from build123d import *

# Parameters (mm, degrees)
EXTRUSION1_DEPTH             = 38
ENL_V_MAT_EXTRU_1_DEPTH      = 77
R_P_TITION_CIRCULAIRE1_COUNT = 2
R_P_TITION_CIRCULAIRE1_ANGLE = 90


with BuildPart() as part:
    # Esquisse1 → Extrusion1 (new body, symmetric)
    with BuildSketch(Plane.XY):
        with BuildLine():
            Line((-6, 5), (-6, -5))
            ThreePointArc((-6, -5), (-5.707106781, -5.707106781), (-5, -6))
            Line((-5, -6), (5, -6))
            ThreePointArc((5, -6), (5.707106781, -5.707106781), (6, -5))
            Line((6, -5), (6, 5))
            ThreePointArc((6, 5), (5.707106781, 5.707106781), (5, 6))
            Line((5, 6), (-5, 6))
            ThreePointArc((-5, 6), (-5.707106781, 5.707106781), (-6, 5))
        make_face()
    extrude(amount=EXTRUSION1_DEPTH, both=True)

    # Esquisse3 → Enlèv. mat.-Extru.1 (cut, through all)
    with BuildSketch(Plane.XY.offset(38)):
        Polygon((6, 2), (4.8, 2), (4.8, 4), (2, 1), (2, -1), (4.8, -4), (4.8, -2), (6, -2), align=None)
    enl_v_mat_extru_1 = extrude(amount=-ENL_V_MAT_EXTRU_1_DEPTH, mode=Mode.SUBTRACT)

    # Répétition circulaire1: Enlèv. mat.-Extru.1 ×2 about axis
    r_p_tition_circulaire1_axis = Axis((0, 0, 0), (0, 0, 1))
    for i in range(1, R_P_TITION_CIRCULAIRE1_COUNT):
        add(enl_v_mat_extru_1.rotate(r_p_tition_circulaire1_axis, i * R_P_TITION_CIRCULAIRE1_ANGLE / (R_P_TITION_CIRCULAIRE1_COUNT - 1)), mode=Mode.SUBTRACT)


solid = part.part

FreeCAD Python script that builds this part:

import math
import FreeCAD as App
import Part
import Sketcher

V = App.Vector
Q = App.Units.Quantity

doc = App.newDocument("Part")
body = doc.addObject("PartDesign::Body", "Body")

# Sketch on XY plane
sketch1 = body.newObject("Sketcher::SketchObject", "Sketch")
sketch1.AttachmentSupport = (doc.getObject("XY_Plane"), [""])
sketch1.MapMode = "FlatFace"
sketch1.addGeometry([
    Part.LineSegment(V(-6, 5, 0), V(-6, -5, 0)),  # 0
    Part.ArcOfCircle(Part.Circle(V(-5, -5, 0), V(0, 0, 1), 1), math.radians(-180), math.radians(-90)),  # 1
    Part.LineSegment(V(-5, -6, 0), V(5, -6, 0)),  # 2
    Part.ArcOfCircle(Part.Circle(V(5, -5, 0), V(0, 0, 1), 1), math.radians(-90), math.radians(0)),  # 3
    Part.LineSegment(V(6, -5, 0), V(6, 5, 0)),  # 4
    Part.ArcOfCircle(Part.Circle(V(5, 5, 0), V(0, 0, 1), 1), math.radians(0), math.radians(90)),  # 5
    Part.LineSegment(V(5, 6, 0), V(-5, 6, 0)),  # 6
    Part.ArcOfCircle(Part.Circle(V(-5, 5, 0), V(0, 0, 1), 1), math.radians(90), math.radians(180)),  # 7
], False)
sketch1.addConstraint([
    Sketcher.Constraint("Tangent", 0, 2, 1, 1),
    Sketcher.Constraint("Tangent", 1, 2, 2, 1),
    Sketcher.Constraint("Tangent", 2, 2, 3, 1),
    Sketcher.Constraint("Tangent", 3, 2, 4, 1),
    Sketcher.Constraint("Tangent", 4, 2, 5, 1),
    Sketcher.Constraint("Tangent", 5, 2, 6, 1),
    Sketcher.Constraint("Tangent", 6, 2, 7, 1),
    Sketcher.Constraint("Tangent", 7, 2, 0, 1),
    Sketcher.Constraint("Vertical", 0),
    Sketcher.Constraint("Horizontal", 2),
    Sketcher.Constraint("Vertical", 4),
    Sketcher.Constraint("Horizontal", 6),
    Sketcher.Constraint("Equal", 1, 3),
    Sketcher.Constraint("Equal", 3, 5),
    Sketcher.Constraint("Equal", 5, 7),
    Sketcher.Constraint("Symmetric", 1, 3, 5, 3, -1, 1),
    Sketcher.Constraint("Equal", 6, 0),
    Sketcher.Constraint("Radius", 1, Q("1 mm")),
    Sketcher.Constraint("DistanceX", 2, 1, 2, 2, Q("10 mm")),
])
pad1 = body.newObject("PartDesign::Pad", "Pad")
pad1.Profile = sketch1
pad1.Length = 76
pad1.Midplane = True

# Sketch on XY plane
sketch2 = body.newObject("Sketcher::SketchObject", "Sketch001")
sketch2.AttachmentSupport = (doc.getObject("XY_Plane"), [""])
sketch2.MapMode = "FlatFace"
sketch2.AttachmentOffset = App.Placement(V(0, 0, 38), App.Rotation())
sketch2.addGeometry([
    Part.LineSegment(V(6, 2, 0), V(4.8, 2, 0)),  # 0
    Part.LineSegment(V(4.8, 2, 0), V(4.8, 4, 0)),  # 1
    Part.LineSegment(V(4.8, 4, 0), V(2, 1, 0)),  # 2
    Part.LineSegment(V(2, 1, 0), V(2, -1, 0)),  # 3
    Part.LineSegment(V(2, -1, 0), V(4.8, -4, 0)),  # 4
    Part.LineSegment(V(4.8, -4, 0), V(4.8, -2, 0)),  # 5
    Part.LineSegment(V(4.8, -2, 0), V(6, -2, 0)),  # 6
    Part.LineSegment(V(6, -2, 0), V(6, 2, 0)),  # 7
], False)
sketch2.addConstraint([
    Sketcher.Constraint("Coincident", 0, 2, 1, 1),
    Sketcher.Constraint("Coincident", 1, 2, 2, 1),
    Sketcher.Constraint("Coincident", 2, 2, 3, 1),
    Sketcher.Constraint("Coincident", 3, 2, 4, 1),
    Sketcher.Constraint("Coincident", 4, 2, 5, 1),
    Sketcher.Constraint("Coincident", 5, 2, 6, 1),
    Sketcher.Constraint("Coincident", 6, 2, 7, 1),
    Sketcher.Constraint("Coincident", 7, 2, 0, 1),
    Sketcher.Constraint("Horizontal", 0),
    Sketcher.Constraint("Vertical", 1),
    Sketcher.Constraint("Vertical", 3),
    Sketcher.Constraint("Vertical", 5),
    Sketcher.Constraint("Horizontal", 6),
    Sketcher.Constraint("Vertical", 7),
    Sketcher.Constraint("Symmetric", 1, 2, 4, 2, -1),
    Sketcher.Constraint("Equal", 1, 3),
    Sketcher.Constraint("Equal", 3, 5),
    Sketcher.Constraint("Equal", 2, 4),
    Sketcher.Constraint("DistanceY", 1, 1, 1, 2, Q("2 mm")),
    Sketcher.Constraint("DistanceY", 7, 1, 7, 2, Q("4 mm")),
    Sketcher.Constraint("DistanceX", 0, 2, 0, 1, Q("1.2 mm")),
    Sketcher.Constraint("DistanceX", -1, 1, 2, 2, Q("2 mm")),
    Sketcher.Constraint("DistanceX", -1, 1, 6, 2, Q("6 mm")),
])
pocket1 = body.newObject("PartDesign::Pocket", "Pocket")
pocket1.Profile = sketch2
pocket1.Type = "ThroughAll"
doc.recompute()

polarpattern = body.newObject("PartDesign::PolarPattern", "PolarPattern")
polarpattern.Originals = [pocket1]
polarpattern.Axis = (doc.getObject("Z_Axis"), [""])
polarpattern.Angle = 90
polarpattern.Occurrences = 2
body.Tip = polarpattern

doc.recompute()
